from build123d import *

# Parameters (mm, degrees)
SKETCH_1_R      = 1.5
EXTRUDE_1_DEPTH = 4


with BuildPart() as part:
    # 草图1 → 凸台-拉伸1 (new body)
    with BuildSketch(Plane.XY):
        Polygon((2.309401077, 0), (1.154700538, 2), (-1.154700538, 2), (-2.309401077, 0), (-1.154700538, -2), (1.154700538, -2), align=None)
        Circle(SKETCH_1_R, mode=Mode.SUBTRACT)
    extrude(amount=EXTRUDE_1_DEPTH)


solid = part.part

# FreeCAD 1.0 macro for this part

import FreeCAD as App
import Part
import Sketcher
from FreeCAD import Vector
Q = App.Units.Quantity

doc = App.newDocument("Part")
body = doc.addObject("PartDesign::Body", "Body")

# Sketch on XY plane
sketch1 = doc.addObject("Sketcher::SketchObject", "Sketch")
body.addObject(sketch1)
sketch1.AttachmentSupport = (doc.XY_Plane, [""])
sketch1.MapMode = "FlatFace"
sketch1.addGeometry(Part.LineSegment(Vector(2.309401, 0, 0), Vector(1.154701, 2, 0)), False)
sketch1.addGeometry(Part.LineSegment(Vector(1.154701, 2, 0), Vector(-1.154701, 2, 0)), False)
sketch1.addGeometry(Part.LineSegment(Vector(-1.154701, 2, 0), Vector(-2.309401, 0, 0)), False)
sketch1.addGeometry(Part.LineSegment(Vector(-2.309401, 0, 0), Vector(-1.154701, -2, 0)), False)
sketch1.addGeometry(Part.LineSegment(Vector(-1.154701, -2, 0), Vector(1.154701, -2, 0)), False)
sketch1.addGeometry(Part.LineSegment(Vector(1.154701, -2, 0), Vector(2.309401, 0, 0)), False)
sketch1.addGeometry(Part.Circle(Vector(0, 0, 0), Vector(0, 0, 1), 1.5), False)
sketch1.addConstraint(Sketcher.Constraint("Coincident", 0, 2, 1, 1))
sketch1.addConstraint(Sketcher.Constraint("Coincident", 1, 2, 2, 1))
sketch1.addConstraint(Sketcher.Constraint("Coincident", 2, 2, 3, 1))
sketch1.addConstraint(Sketcher.Constraint("Coincident", 3, 2, 4, 1))
sketch1.addConstraint(Sketcher.Constraint("Coincident", 4, 2, 5, 1))
sketch1.addConstraint(Sketcher.Constraint("Coincident", 5, 2, 0, 1))
sketch1.addConstraint(Sketcher.Constraint("Horizontal", 1))
sketch1.addConstraint(Sketcher.Constraint("Horizontal", 4))
sketch1.addConstraint(Sketcher.Constraint("Coincident", 6, 3, -1, 1))
sketch1.addConstraint(Sketcher.Constraint("Symmetric", 0, 2, 3, 2, -1, 1))
sketch1.addConstraint(Sketcher.Constraint("Symmetric", 2, 2, 5, 2, -1, 1))
sketch1.addConstraint(Sketcher.Constraint("PointOnObject", 2, 2, -1))
sketch1.addConstraint(Sketcher.Constraint("Parallel", 2, 5))
sketch1.addConstraint(Sketcher.Constraint("Vertical", 1, 2, 3, 2))
sketch1.addConstraint(Sketcher.Constraint("Diameter", 6, Q("3 mm")))
sketch1.addConstraint(Sketcher.Constraint("Angle", 0, Q("120 deg")))
sketch1.addConstraint(Sketcher.Constraint("DistanceY", -1, 1, 0, 2, Q("2 mm")))
sketch1.addConstraint(Sketcher.Constraint("DistanceX", 1, 2, 1, 1, Q("2.309401 mm")))
pad1 = doc.addObject("PartDesign::Pad", "Pad")
body.addObject(pad1)
pad1.Profile = sketch1
pad1.Length = 4

doc.recompute()
